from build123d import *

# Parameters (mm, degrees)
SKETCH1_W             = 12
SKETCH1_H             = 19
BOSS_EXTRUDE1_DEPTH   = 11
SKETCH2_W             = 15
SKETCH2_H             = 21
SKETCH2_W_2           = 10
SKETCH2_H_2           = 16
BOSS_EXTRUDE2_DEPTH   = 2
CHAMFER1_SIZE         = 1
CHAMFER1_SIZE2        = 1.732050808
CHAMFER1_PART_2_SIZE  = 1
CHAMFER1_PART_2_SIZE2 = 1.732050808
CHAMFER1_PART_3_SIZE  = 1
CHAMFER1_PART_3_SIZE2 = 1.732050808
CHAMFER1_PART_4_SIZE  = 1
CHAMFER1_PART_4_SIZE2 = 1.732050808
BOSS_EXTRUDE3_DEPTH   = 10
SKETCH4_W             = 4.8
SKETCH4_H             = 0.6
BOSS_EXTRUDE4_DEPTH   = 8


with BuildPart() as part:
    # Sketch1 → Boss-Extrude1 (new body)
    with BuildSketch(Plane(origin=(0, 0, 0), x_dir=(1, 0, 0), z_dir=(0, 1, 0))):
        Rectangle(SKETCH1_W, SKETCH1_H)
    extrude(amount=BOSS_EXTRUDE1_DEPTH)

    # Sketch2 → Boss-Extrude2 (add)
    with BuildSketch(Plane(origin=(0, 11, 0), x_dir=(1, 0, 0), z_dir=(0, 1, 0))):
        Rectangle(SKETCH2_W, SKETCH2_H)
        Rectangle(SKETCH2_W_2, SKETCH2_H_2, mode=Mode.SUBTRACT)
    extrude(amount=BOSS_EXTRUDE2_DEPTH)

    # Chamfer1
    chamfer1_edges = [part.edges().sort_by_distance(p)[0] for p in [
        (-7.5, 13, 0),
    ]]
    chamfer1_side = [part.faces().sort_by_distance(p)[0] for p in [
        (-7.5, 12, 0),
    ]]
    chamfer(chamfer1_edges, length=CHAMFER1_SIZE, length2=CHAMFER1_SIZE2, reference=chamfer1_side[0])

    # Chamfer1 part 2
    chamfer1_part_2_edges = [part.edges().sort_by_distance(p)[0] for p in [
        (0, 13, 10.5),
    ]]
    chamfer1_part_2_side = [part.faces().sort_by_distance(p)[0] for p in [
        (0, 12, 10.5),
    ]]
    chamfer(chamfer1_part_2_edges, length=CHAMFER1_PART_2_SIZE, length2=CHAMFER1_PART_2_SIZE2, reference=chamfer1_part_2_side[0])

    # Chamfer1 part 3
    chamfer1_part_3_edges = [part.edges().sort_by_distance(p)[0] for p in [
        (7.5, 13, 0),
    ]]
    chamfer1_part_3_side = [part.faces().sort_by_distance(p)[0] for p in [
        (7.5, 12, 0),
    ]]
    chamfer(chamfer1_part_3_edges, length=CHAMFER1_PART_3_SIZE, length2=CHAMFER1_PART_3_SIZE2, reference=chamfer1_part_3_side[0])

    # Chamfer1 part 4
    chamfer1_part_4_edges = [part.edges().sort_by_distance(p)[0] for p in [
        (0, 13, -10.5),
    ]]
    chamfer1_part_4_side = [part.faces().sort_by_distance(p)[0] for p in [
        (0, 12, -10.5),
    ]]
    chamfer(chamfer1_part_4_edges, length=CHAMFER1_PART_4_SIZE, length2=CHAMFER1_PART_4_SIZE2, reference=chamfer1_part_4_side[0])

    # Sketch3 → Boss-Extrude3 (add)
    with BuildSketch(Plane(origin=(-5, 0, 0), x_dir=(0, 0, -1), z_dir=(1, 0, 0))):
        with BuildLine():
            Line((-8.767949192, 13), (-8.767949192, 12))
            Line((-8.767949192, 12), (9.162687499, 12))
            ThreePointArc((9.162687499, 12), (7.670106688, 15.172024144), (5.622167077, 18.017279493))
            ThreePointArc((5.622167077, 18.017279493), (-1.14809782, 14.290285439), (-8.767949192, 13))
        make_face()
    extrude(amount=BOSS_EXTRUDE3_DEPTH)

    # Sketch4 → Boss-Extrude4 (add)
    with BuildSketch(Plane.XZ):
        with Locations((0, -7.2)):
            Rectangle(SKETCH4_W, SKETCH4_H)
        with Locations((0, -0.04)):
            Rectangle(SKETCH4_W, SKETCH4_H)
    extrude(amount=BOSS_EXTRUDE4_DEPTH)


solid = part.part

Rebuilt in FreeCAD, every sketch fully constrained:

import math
import FreeCAD as App
import Part
import Sketcher
from FreeCAD import Vector


def edges_at(feature, points):
    """Names of the edges that pass closest to the given points."""
    edges = feature.Shape.Edges
    near = lambda p: min(range(len(edges)), key=lambda i: edges[i].distToShape(Part.Vertex(*p))[0])
    return sorted({f"Edge{near(p) + 1}" for p in points})


def add_polygon(sketch, points):
    """Adds a closed chain of lines whose ends are joined by coincident constraints."""
    first, n = sketch.GeometryCount, len(points)
    for a, b in zip(points, points[1:] + points[:1]):
        sketch.addGeometry(Part.LineSegment(App.Vector(*a, 0), App.Vector(*b, 0)), False)
    for i in range(n):
        sketch.addConstraint(Sketcher.Constraint("Coincident", first + i, 2, first + (i + 1) % n, 1))

doc = App.newDocument("Part")
params = doc.addObject("Spreadsheet::Sheet", "Params")
for row, (alias, value) in enumerate([
    ("sketch1_width", "12 mm"),
    ("sketch1_height", "19 mm"),
    ("pad1_length", "11 mm"),
    ("sketch2_width", "15 mm"),
    ("sketch2_width2", "10 mm"),
    ("sketch2_height", "21 mm"),
    ("sketch2_height2", "16 mm"),
    ("pad2_length", "2 mm"),
    ("chamfer_size", "1 mm"),
    ("chamfer_size2", "1.732051 mm"),
    ("chamfer2_size", "1 mm"),
    ("chamfer2_size2", "1.732051 mm"),
    ("chamfer3_size", "1 mm"),
    ("chamfer3_size2", "1.732051 mm"),
    ("chamfer4_size", "1 mm"),
    ("chamfer4_size2", "1.732051 mm"),
    ("sketch3_width", "1 mm"),
    ("pad3_length", "10 mm"),
    ("sketch4_width", "4.8 mm"),
    ("sketch4_height", "0.6 mm"),
    ("pad4_length", "8 mm"),
], start=1):
    params.set(f"A{row}", alias)
    params.set(f"B{row}", "=" + value)
    params.setAlias(f"B{row}", alias)

body = doc.addObject("PartDesign::Body", "Body")

# Sketch on XZ plane
sketch1 = doc.addObject("Sketcher::SketchObject", "Sketch")
body.addObject(sketch1)
sketch1.AttachmentSupport = (doc.XZ_Plane, [""])
sketch1.MapMode = "FlatFace"
add_polygon(sketch1, [(-6, -9.5), (-6, 9.5), (6, 9.5), (6, -9.5)])  # lines 0-3
sketch1.addConstraint(Sketcher.Constraint("Vertical", 0))
sketch1.addConstraint(Sketcher.Constraint("Horizontal", 1))
sketch1.addConstraint(Sketcher.Constraint("Vertical", 2))
sketch1.addConstraint(Sketcher.Constraint("Horizontal", 3))
sketch1.addConstraint(Sketcher.Constraint("Symmetric", 0, 2, 2, 2, -1, 1))
sketch1.addConstraint(Sketcher.Constraint("DistanceX", 1, 1, 1, 2, 12.0))
sketch1.addConstraint(Sketcher.Constraint("DistanceY", 0, 1, 0, 2, 19.0))
sketch1.setExpression("Constraints[9]", "Params.sketch1_width")
sketch1.setExpression("Constraints[10]", "Params.sketch1_height")
pad1 = doc.addObject("PartDesign::Pad", "Pad")
body.addObject(pad1)
pad1.Profile = sketch1
pad1.setExpression("Length", "Params.pad1_length")
pad1.Reversed = True

# Sketch on XZ plane
sketch2 = doc.addObject("Sketcher::SketchObject", "Sketch001")
body.addObject(sketch2)
sketch2.AttachmentSupport = (doc.XZ_Plane, [""])
sketch2.MapMode = "FlatFace"
sketch2.AttachmentOffset = App.Placement(Vector(0, 0, -11), App.Rotation())
add_polygon(sketch2, [(-7.5, -10.5), (-7.5, 10.5), (7.5, 10.5), (7.5, -10.5)])  # lines 0-3
add_polygon(sketch2, [(5, 8), (-5, 8), (-5, -8), (5, -8)])  # lines 4-7
sketch2.addConstraint(Sketcher.Constraint("Vertical", 0))
sketch2.addConstraint(Sketcher.Constraint("Horizontal", 1))
sketch2.addConstraint(Sketcher.Constraint("Vertical", 2))
sketch2.addConstraint(Sketcher.Constraint("Horizontal", 3))
sketch2.addConstraint(Sketcher.Constraint("Horizontal", 4))
sketch2.addConstraint(Sketcher.Constraint("Vertical", 5))
sketch2.addConstraint(Sketcher.Constraint("Horizontal", 6))
sketch2.addConstraint(Sketcher.Constraint("Vertical", 7))
sketch2.addConstraint(Sketcher.Constraint("Symmetric", 0, 2, 2, 2, -1, 1))
sketch2.addConstraint(Sketcher.Constraint("Symmetric", 4, 2, 6, 2, -1, 1))
sketch2.addConstraint(Sketcher.Constraint("DistanceX", 1, 1, 1, 2, 15.0))
sketch2.addConstraint(Sketcher.Constraint("DistanceX", 4, 2, 4, 1, 10.0))
sketch2.addConstraint(Sketcher.Constraint("DistanceY", 0, 1, 0, 2, 21.0))
sketch2.addConstraint(Sketcher.Constraint("DistanceY", 5, 2, 5, 1, 16.0))
sketch2.setExpression("Constraints[18]", "Params.sketch2_width")
sketch2.setExpression("Constraints[19]", "Params.sketch2_width2")
sketch2.setExpression("Constraints[20]", "Params.sketch2_height")
sketch2.setExpression("Constraints[21]", "Params.sketch2_height2")
pad2 = doc.addObject("PartDesign::Pad", "Pad001")
body.addObject(pad2)
pad2.Profile = sketch2
pad2.setExpression("Length", "Params.pad2_length")
pad2.Reversed = True
doc.recompute()

chamfer = doc.addObject("PartDesign::Chamfer", "Chamfer")
body.addObject(chamfer)
chamfer.Base = (pad2, edges_at(pad2, [(-7.5, 13, 0)]))
chamfer.ChamferType = "Two distances"
chamfer.setExpression("Size", "Params.chamfer_size")
chamfer.setExpression("Size2", "Params.chamfer_size2")
doc.recompute()

chamfer2 = doc.addObject("PartDesign::Chamfer", "Chamfer001")
body.addObject(chamfer2)
chamfer2.Base = (chamfer, edges_at(chamfer, [(0.866, 13, 10.5)]))
chamfer2.ChamferType = "Two distances"
chamfer2.setExpression("Size", "Params.chamfer2_size")
chamfer2.setExpression("Size2", "Params.chamfer2_size2")
doc.recompute()

chamfer3 = doc.addObject("PartDesign::Chamfer", "Chamfer002")
body.addObject(chamfer3)
chamfer3.Base = (chamfer2, edges_at(chamfer2, [(7.5, 13, -0.866)]))
chamfer3.ChamferType = "Two distances"
chamfer3.setExpression("Size", "Params.chamfer3_size")
chamfer3.setExpression("Size2", "Params.chamfer3_size2")
chamfer3.FlipDirection = True
doc.recompute()

chamfer4 = doc.addObject("PartDesign::Chamfer", "Chamfer003")
body.addObject(chamfer4)
chamfer4.Base = (chamfer3, edges_at(chamfer3, [(0, 13, -10.5)]))
chamfer4.ChamferType = "Two distances"
chamfer4.setExpression("Size", "Params.chamfer4_size")
chamfer4.setExpression("Size2", "Params.chamfer4_size2")
chamfer4.FlipDirection = True

# Sketch on YZ plane
sketch3 = doc.addObject("Sketcher::SketchObject", "Sketch002")
body.addObject(sketch3)
sketch3.AttachmentSupport = (doc.YZ_Plane, [""])
sketch3.MapMode = "FlatFace"
sketch3.AttachmentOffset = App.Placement(Vector(0, 0, -5), App.Rotation())
sketch3.addGeometry(Part.LineSegment(Vector(13, 8.767949, 0), Vector(12, 8.767949, 0)), False)
sketch3.addGeometry(Part.LineSegment(Vector(12, 8.767949, 0), Vector(12, -9.162687, 0)), False)
sketch3.addGeometry(Part.ArcOfCircle(Part.Circle(Vector(5.5, 8.767949, 0), Vector(0, 0, 1), 19.072434), math.radians(-70.074012), math.radians(-48.98154)), False)
sketch3.addGeometry(Part.ArcOfCircle(Part.Circle(Vector(36.144868, 8.767949, 0), Vector(0, 0, 1), 23.144868), math.radians(-180), math.radians(-141.556607)), False)
sketch3.addConstraint(Sketcher.Constraint("Coincident", 0, 2, 1, 1))
sketch3.addConstraint(Sketcher.Constraint("Coincident", 1, 2, 2, 1))
sketch3.addConstraint(Sketcher.Constraint("Coincident", 2, 2, 3, 2))
sketch3.addConstraint(Sketcher.Constraint("Coincident", 3, 1, 0, 1))
sketch3.addConstraint(Sketcher.Constraint("Horizontal", 0))
sketch3.addConstraint(Sketcher.Constraint("Vertical", 1))
sketch3.addConstraint(Sketcher.Constraint("Horizontal", 2, 3, 3, 3))
sketch3.addConstraint(Sketcher.Constraint("Horizontal", 3, 3, 0, 2))
sketch3.addConstraint(Sketcher.Constraint("DistanceX", 0, 2, 0, 1, 1.0))
sketch3.addConstraint(Sketcher.Constraint("DistanceX", -1, 1, 0, 2, 12.0))
sketch3.addConstraint(Sketcher.Constraint("DistanceX", -1, 1, 2, 3, 5.5))
sketch3.addConstraint(Sketcher.Constraint("Radius", 2, 19.072434))
sketch3.addConstraint(Sketcher.Constraint("Radius", 3, 23.144868))
sketch3.addConstraint(Sketcher.Constraint("DistanceY", -1, 1, 2, 3, 8.767949))
sketch3.setExpression("Constraints[8]", "Params.sketch3_width")
pad3 = doc.addObject("PartDesign::Pad", "Pad002")
body.addObject(pad3)
pad3.Profile = sketch3
pad3.setExpression("Length", "Params.pad3_length")

# Sketch on XZ plane
sketch4 = doc.addObject("Sketcher::SketchObject", "Sketch003")
body.addObject(sketch4)
sketch4.AttachmentSupport = (doc.XZ_Plane, [""])
sketch4.MapMode = "FlatFace"
add_polygon(sketch4, [(-2.4, -6.9), (-2.4, -7.5), (2.4, -7.5), (2.4, -6.9)])  # lines 0-3
add_polygon(sketch4, [(-2.4, 0.26), (-2.4, -0.34), (2.4, -0.34), (2.4, 0.26)])  # lines 4-7
sketch4.addConstraint(Sketcher.Constraint("Vertical", 0))
sketch4.addConstraint(Sketcher.Constraint("Horizontal", 1))
sketch4.addConstraint(Sketcher.Constraint("Vertical", 2))
sketch4.addConstraint(Sketcher.Constraint("Horizontal", 3))
sketch4.addConstraint(Sketcher.Constraint("Vertical", 4))
sketch4.addConstraint(Sketcher.Constraint("Horizontal", 5))
sketch4.addConstraint(Sketcher.Constraint("Vertical", 6))
sketch4.addConstraint(Sketcher.Constraint("Horizontal", 7))
sketch4.addConstraint(Sketcher.Constraint("Vertical", 3, 2, 4, 2))
sketch4.addConstraint(Sketcher.Constraint("Vertical", 2, 2, 5, 2))
sketch4.addConstraint(Sketcher.Constraint("Equal", 2, 4))
sketch4.addConstraint(Sketcher.Constraint("DistanceX", 1, 1, 1, 2, 4.8))
sketch4.addConstraint(Sketcher.Constraint("DistanceY", 0, 2, 0, 1, 0.6))
sketch4.addConstraint(Sketcher.Constraint("DistanceX", 0, 2, -1, 1, 2.4))
sketch4.addConstraint(Sketcher.Constraint("DistanceY", 0, 2, -1, 1, 7.5))
sketch4.addConstraint(Sketcher.Constraint("DistanceY", 4, 2, -1, 1, 0.34))
sketch4.setExpression("Constraints[19]", "Params.sketch4_width")
sketch4.setExpression("Constraints[20]", "Params.sketch4_height")
pad4 = doc.addObject("PartDesign::Pad", "Pad003")
body.addObject(pad4)
pad4.Profile = sketch4
pad4.setExpression("Length", "Params.pad4_length")

doc.recompute()
